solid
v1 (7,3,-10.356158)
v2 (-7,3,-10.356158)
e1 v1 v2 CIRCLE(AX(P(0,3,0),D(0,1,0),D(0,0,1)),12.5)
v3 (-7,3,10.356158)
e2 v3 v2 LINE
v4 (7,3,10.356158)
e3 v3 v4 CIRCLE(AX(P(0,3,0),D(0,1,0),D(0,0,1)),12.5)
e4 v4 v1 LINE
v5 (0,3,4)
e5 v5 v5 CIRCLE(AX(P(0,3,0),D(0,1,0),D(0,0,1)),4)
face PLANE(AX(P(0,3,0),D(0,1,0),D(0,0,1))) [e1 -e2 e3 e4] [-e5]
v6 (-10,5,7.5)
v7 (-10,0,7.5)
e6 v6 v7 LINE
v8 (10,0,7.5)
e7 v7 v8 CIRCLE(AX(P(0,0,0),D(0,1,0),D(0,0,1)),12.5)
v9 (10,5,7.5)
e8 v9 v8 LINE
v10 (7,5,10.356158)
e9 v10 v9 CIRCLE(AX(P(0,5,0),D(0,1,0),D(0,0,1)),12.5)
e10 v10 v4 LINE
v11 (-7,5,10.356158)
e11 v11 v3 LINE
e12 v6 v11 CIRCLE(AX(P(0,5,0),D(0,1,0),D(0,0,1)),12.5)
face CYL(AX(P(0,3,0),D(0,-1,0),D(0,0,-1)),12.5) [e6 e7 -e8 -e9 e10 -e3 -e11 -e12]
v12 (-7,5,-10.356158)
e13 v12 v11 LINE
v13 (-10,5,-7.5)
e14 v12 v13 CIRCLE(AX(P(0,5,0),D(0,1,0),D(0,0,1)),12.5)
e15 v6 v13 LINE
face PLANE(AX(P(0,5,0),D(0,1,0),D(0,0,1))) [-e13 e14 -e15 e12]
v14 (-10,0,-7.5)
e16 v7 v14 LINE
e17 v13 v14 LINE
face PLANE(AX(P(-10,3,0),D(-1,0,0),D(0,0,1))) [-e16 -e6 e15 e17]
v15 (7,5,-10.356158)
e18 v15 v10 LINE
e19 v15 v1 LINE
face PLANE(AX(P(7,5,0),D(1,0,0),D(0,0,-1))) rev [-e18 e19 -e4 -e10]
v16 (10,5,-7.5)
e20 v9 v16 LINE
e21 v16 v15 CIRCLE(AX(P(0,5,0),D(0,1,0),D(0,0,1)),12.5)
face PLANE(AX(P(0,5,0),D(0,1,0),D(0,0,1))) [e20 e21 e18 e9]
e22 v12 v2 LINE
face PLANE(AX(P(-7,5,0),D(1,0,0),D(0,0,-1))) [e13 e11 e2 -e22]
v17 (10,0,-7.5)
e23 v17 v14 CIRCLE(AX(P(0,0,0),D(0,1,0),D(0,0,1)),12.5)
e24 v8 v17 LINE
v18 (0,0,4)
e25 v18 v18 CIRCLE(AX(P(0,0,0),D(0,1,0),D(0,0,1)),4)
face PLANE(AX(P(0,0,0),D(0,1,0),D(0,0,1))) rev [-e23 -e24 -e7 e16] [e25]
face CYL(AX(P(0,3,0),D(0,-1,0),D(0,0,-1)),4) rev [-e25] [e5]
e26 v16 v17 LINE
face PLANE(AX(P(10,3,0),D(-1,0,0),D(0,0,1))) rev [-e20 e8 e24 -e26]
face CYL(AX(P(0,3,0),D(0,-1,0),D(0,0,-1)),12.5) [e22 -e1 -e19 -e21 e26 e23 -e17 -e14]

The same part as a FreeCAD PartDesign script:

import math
import FreeCAD as App
import Part
import Sketcher

V = App.Vector
Q = App.Units.Quantity

doc = App.newDocument("Part")
body = doc.addObject("PartDesign::Body", "Body")

# Sketch on XZ plane
sketch1 = doc.addObject("Sketcher::SketchObject", "Sketch")
body.addObject(sketch1)
sketch1.AttachmentSupport = (doc.XZ_Plane, [""])
sketch1.MapMode = "FlatFace"
sketch1.addGeometry(Part.ArcOfCircle(Part.Circle(V(0, 0, 0), V(0, 0, 1), 12.5), math.radians(124.06), math.radians(143.13)), False)
sketch1.addGeometry(Part.ArcOfCircle(Part.Circle(V(0, 0, 0), V(0, 0, 1), 12.5), math.radians(90), math.radians(124)), False)
sketch1.addGeometry(Part.ArcOfCircle(Part.Circle(V(0, 0, 0), V(0, 0, 1), 12.5), math.radians(56), math.radians(90)), False)
sketch1.addGeometry(Part.ArcOfCircle(Part.Circle(V(0, 0, 0), V(0, 0, 1), 12.5), math.radians(36.87), math.radians(55.94)), False)
sketch1.addGeometry(Part.LineSegment(V(10, 7.5, 0), V(10, -7.5, 0)), False)
sketch1.addGeometry(Part.ArcOfCircle(Part.Circle(V(0, 0, 0), V(0, 0, 1), 12.5), math.radians(-55.94), math.radians(-36.87)), False)
sketch1.addGeometry(Part.ArcOfCircle(Part.Circle(V(0, 0, 0), V(0, 0, 1), 12.5), math.radians(-90), math.radians(-56)), False)
sketch1.addGeometry(Part.ArcOfCircle(Part.Circle(V(0, 0, 0), V(0, 0, 1), 12.5), math.radians(-124), math.radians(-90)), False)
sketch1.addGeometry(Part.ArcOfCircle(Part.Circle(V(0, 0, 0), V(0, 0, 1), 12.5), math.radians(-143.13), math.radians(-124.06)), False)
sketch1.addGeometry(Part.LineSegment(V(-10, -7.5, 0), V(-10, 7.5, 0)), False)
sketch1.addGeometry(Part.ArcOfCircle(Part.Circle(V(0, 0, 0), V(0, 0, 1), 4), math.radians(90), math.radians(270)), False)
sketch1.addGeometry(Part.ArcOfCircle(Part.Circle(V(0, 0, 0), V(0, 0, 1), 4), math.radians(-90), math.radians(0)), False)
sketch1.addGeometry(Part.ArcOfCircle(Part.Circle(V(0, 0, 0), V(0, 0, 1), 4), math.radians(0), math.radians(90)), False)
sketch1.addConstraint(Sketcher.Constraint("Tangent", 0, 1, 1, 2))
sketch1.addConstraint(Sketcher.Constraint("Tangent", 1, 1, 2, 2))
sketch1.addConstraint(Sketcher.Constraint("Tangent", 2, 1, 3, 2))
sketch1.addConstraint(Sketcher.Constraint("Coincident", 3, 1, 4, 1))
sketch1.addConstraint(Sketcher.Constraint("Coincident", 4, 2, 5, 2))
sketch1.addConstraint(Sketcher.Constraint("Tangent", 5, 1, 6, 2))
sketch1.addConstraint(Sketcher.Constraint("Tangent", 6, 1, 7, 2))
sketch1.addConstraint(Sketcher.Constraint("Tangent", 7, 1, 8, 2))
sketch1.addConstraint(Sketcher.Constraint("Coincident", 8, 1, 9, 1))
sketch1.addConstraint(Sketcher.Constraint("Coincident", 9, 2, 0, 2))
sketch1.addConstraint(Sketcher.Constraint("Tangent", 10, 2, 11, 1))
sketch1.addConstraint(Sketcher.Constraint("Tangent", 11, 2, 12, 1))
sketch1.addConstraint(Sketcher.Constraint("Tangent", 12, 2, 10, 1))
sketch1.addConstraint(Sketcher.Constraint("Vertical", 4))
sketch1.addConstraint(Sketcher.Constraint("Vertical", 9))
sketch1.addConstraint(Sketcher.Constraint("Coincident", 0, 3, -1, 1))
sketch1.addConstraint(Sketcher.Constraint("Coincident", 2, 3, -1, 1))
sketch1.addConstraint(Sketcher.Constraint("Coincident", 5, 3, -1, 1))
sketch1.addConstraint(Sketcher.Constraint("Coincident", 7, 3, -1, 1))
sketch1.addConstraint(Sketcher.Constraint("Coincident", 10, 3, -1, 1))
sketch1.addConstraint(Sketcher.Constraint("Equal", 2, 3))
sketch1.addConstraint(Sketcher.Constraint("Equal", 3, 5))
sketch1.addConstraint(Sketcher.Constraint("Equal", 7, 8))
sketch1.addConstraint(Sketcher.Constraint("PointOnObject", 1, 1, -2))
sketch1.addConstraint(Sketcher.Constraint("PointOnObject", 6, 1, -2))
sketch1.addConstraint(Sketcher.Constraint("PointOnObject", 10, 2, -2))
sketch1.addConstraint(Sketcher.Constraint("PointOnObject", 11, 2, -1))
sketch1.addConstraint(Sketcher.Constraint("PointOnObject", 12, 2, -2))
sketch1.addConstraint(Sketcher.Constraint("Horizontal", 0, 1, 2, 1))
sketch1.addConstraint(Sketcher.Constraint("Horizontal", 5, 1, 7, 1))
sketch1.addConstraint(Sketcher.Constraint("Horizontal", 4, 2, 8, 1))
sketch1.addConstraint(Sketcher.Constraint("Vertical", 2, 1, 5, 1))
sketch1.addConstraint(Sketcher.Constraint("Radius", 10, Q("4 mm")))
sketch1.addConstraint(Sketcher.Constraint("Radius", 0, Q("12.5 mm")))
sketch1.addConstraint(Sketcher.Constraint("DistanceY", 4, 2, 4, 1, Q("15 mm")))
sketch1.addConstraint(Sketcher.Constraint("DistanceX", 0, 1, -1, 1, Q("7 mm")))
pad1 = doc.addObject("PartDesign::Pad", "Pad")
body.addObject(pad1)
pad1.Profile = sketch1
pad1.Length = 3
pad1.Reversed = True

# Sketch on XZ plane
sketch2 = doc.addObject("Sketcher::SketchObject", "Sketch001")
body.addObject(sketch2)
sketch2.AttachmentSupport = (doc.XZ_Plane, [""])
sketch2.MapMode = "FlatFace"
sketch2.addGeometry(Part.LineSegment(V(-10, -7.5, 0), V(-10, 7.5, 0)), False)
sketch2.addGeometry(Part.ArcOfCircle(Part.Circle(V(0, 0, 0), V(0, 0, 1), 12.5), math.radians(124.06), math.radians(143.13)), False)
sketch2.addGeometry(Part.LineSegment(V(-7, 10.4, 0), V(-7, -10.4, 0)), False)
sketch2.addGeometry(Part.ArcOfCircle(Part.Circle(V(0, 0, 0), V(0, 0, 1), 12.5), math.radians(-143.13), math.radians(-124.06)), False)
sketch2.addGeometry(Part.LineSegment(V(7, -10.4, 0), V(7, 10.4, 0)), False)
sketch2.addGeometry(Part.ArcOfCircle(Part.Circle(V(0, 0, 0), V(0, 0, 1), 12.5), math.radians(36.87), math.radians(55.94)), False)
sketch2.addGeometry(Part.LineSegment(V(10, 7.5, 0), V(10, -7.5, 0)), False)
sketch2.addGeometry(Part.ArcOfCircle(Part.Circle(V(0, 0, 0), V(0, 0, 1), 12.5), math.radians(-55.94), math.radians(-36.87)), False)
sketch2.addConstraint(Sketcher.Constraint("Coincident", 0, 2, 1, 2))
sketch2.addConstraint(Sketcher.Constraint("Coincident", 1, 1, 2, 1))
sketch2.addConstraint(Sketcher.Constraint("Coincident", 2, 2, 3, 2))
sketch2.addConstraint(Sketcher.Constraint("Coincident", 3, 1, 0, 1))
sketch2.addConstraint(Sketcher.Constraint("Coincident", 4, 2, 5, 2))
sketch2.addConstraint(Sketcher.Constraint("Coincident", 5, 1, 6, 1))
sketch2.addConstraint(Sketcher.Constraint("Coincident", 6, 2, 7, 2))
sketch2.addConstraint(Sketcher.Constraint("Coincident", 7, 1, 4, 1))
sketch2.addConstraint(Sketcher.Constraint("Vertical", 0))
sketch2.addConstraint(Sketcher.Constraint("Vertical", 2))
sketch2.addConstraint(Sketcher.Constraint("Vertical", 4))
sketch2.addConstraint(Sketcher.Constraint("Vertical", 6))
sketch2.addConstraint(Sketcher.Constraint("Coincident", 1, 3, -1, 1))
sketch2.addConstraint(Sketcher.Constraint("Coincident", 3, 3, -1, 1))
sketch2.addConstraint(Sketcher.Constraint("Coincident", 5, 3, -1, 1))
sketch2.addConstraint(Sketcher.Constraint("Coincident", 7, 3, -1, 1))
sketch2.addConstraint(Sketcher.Constraint("Equal", 1, 3))
sketch2.addConstraint(Sketcher.Constraint("Equal", 3, 5))
sketch2.addConstraint(Sketcher.Constraint("Equal", 5, 7))
sketch2.addConstraint(Sketcher.Constraint("Horizontal", 1, 1, 4, 2))
sketch2.addConstraint(Sketcher.Constraint("Horizontal", 0, 2, 5, 1))
sketch2.addConstraint(Sketcher.Constraint("Radius", 1, Q("12.5 mm")))
sketch2.addConstraint(Sketcher.Constraint("DistanceY", 0, 1, 0, 2, Q("15 mm")))
sketch2.addConstraint(Sketcher.Constraint("DistanceX", 1, 1, -1, 1, Q("7 mm")))
pad2 = doc.addObject("PartDesign::Pad", "Pad001")
body.addObject(pad2)
pad2.Profile = sketch2
pad2.Length = 5
pad2.Reversed = True

doc.recompute()
